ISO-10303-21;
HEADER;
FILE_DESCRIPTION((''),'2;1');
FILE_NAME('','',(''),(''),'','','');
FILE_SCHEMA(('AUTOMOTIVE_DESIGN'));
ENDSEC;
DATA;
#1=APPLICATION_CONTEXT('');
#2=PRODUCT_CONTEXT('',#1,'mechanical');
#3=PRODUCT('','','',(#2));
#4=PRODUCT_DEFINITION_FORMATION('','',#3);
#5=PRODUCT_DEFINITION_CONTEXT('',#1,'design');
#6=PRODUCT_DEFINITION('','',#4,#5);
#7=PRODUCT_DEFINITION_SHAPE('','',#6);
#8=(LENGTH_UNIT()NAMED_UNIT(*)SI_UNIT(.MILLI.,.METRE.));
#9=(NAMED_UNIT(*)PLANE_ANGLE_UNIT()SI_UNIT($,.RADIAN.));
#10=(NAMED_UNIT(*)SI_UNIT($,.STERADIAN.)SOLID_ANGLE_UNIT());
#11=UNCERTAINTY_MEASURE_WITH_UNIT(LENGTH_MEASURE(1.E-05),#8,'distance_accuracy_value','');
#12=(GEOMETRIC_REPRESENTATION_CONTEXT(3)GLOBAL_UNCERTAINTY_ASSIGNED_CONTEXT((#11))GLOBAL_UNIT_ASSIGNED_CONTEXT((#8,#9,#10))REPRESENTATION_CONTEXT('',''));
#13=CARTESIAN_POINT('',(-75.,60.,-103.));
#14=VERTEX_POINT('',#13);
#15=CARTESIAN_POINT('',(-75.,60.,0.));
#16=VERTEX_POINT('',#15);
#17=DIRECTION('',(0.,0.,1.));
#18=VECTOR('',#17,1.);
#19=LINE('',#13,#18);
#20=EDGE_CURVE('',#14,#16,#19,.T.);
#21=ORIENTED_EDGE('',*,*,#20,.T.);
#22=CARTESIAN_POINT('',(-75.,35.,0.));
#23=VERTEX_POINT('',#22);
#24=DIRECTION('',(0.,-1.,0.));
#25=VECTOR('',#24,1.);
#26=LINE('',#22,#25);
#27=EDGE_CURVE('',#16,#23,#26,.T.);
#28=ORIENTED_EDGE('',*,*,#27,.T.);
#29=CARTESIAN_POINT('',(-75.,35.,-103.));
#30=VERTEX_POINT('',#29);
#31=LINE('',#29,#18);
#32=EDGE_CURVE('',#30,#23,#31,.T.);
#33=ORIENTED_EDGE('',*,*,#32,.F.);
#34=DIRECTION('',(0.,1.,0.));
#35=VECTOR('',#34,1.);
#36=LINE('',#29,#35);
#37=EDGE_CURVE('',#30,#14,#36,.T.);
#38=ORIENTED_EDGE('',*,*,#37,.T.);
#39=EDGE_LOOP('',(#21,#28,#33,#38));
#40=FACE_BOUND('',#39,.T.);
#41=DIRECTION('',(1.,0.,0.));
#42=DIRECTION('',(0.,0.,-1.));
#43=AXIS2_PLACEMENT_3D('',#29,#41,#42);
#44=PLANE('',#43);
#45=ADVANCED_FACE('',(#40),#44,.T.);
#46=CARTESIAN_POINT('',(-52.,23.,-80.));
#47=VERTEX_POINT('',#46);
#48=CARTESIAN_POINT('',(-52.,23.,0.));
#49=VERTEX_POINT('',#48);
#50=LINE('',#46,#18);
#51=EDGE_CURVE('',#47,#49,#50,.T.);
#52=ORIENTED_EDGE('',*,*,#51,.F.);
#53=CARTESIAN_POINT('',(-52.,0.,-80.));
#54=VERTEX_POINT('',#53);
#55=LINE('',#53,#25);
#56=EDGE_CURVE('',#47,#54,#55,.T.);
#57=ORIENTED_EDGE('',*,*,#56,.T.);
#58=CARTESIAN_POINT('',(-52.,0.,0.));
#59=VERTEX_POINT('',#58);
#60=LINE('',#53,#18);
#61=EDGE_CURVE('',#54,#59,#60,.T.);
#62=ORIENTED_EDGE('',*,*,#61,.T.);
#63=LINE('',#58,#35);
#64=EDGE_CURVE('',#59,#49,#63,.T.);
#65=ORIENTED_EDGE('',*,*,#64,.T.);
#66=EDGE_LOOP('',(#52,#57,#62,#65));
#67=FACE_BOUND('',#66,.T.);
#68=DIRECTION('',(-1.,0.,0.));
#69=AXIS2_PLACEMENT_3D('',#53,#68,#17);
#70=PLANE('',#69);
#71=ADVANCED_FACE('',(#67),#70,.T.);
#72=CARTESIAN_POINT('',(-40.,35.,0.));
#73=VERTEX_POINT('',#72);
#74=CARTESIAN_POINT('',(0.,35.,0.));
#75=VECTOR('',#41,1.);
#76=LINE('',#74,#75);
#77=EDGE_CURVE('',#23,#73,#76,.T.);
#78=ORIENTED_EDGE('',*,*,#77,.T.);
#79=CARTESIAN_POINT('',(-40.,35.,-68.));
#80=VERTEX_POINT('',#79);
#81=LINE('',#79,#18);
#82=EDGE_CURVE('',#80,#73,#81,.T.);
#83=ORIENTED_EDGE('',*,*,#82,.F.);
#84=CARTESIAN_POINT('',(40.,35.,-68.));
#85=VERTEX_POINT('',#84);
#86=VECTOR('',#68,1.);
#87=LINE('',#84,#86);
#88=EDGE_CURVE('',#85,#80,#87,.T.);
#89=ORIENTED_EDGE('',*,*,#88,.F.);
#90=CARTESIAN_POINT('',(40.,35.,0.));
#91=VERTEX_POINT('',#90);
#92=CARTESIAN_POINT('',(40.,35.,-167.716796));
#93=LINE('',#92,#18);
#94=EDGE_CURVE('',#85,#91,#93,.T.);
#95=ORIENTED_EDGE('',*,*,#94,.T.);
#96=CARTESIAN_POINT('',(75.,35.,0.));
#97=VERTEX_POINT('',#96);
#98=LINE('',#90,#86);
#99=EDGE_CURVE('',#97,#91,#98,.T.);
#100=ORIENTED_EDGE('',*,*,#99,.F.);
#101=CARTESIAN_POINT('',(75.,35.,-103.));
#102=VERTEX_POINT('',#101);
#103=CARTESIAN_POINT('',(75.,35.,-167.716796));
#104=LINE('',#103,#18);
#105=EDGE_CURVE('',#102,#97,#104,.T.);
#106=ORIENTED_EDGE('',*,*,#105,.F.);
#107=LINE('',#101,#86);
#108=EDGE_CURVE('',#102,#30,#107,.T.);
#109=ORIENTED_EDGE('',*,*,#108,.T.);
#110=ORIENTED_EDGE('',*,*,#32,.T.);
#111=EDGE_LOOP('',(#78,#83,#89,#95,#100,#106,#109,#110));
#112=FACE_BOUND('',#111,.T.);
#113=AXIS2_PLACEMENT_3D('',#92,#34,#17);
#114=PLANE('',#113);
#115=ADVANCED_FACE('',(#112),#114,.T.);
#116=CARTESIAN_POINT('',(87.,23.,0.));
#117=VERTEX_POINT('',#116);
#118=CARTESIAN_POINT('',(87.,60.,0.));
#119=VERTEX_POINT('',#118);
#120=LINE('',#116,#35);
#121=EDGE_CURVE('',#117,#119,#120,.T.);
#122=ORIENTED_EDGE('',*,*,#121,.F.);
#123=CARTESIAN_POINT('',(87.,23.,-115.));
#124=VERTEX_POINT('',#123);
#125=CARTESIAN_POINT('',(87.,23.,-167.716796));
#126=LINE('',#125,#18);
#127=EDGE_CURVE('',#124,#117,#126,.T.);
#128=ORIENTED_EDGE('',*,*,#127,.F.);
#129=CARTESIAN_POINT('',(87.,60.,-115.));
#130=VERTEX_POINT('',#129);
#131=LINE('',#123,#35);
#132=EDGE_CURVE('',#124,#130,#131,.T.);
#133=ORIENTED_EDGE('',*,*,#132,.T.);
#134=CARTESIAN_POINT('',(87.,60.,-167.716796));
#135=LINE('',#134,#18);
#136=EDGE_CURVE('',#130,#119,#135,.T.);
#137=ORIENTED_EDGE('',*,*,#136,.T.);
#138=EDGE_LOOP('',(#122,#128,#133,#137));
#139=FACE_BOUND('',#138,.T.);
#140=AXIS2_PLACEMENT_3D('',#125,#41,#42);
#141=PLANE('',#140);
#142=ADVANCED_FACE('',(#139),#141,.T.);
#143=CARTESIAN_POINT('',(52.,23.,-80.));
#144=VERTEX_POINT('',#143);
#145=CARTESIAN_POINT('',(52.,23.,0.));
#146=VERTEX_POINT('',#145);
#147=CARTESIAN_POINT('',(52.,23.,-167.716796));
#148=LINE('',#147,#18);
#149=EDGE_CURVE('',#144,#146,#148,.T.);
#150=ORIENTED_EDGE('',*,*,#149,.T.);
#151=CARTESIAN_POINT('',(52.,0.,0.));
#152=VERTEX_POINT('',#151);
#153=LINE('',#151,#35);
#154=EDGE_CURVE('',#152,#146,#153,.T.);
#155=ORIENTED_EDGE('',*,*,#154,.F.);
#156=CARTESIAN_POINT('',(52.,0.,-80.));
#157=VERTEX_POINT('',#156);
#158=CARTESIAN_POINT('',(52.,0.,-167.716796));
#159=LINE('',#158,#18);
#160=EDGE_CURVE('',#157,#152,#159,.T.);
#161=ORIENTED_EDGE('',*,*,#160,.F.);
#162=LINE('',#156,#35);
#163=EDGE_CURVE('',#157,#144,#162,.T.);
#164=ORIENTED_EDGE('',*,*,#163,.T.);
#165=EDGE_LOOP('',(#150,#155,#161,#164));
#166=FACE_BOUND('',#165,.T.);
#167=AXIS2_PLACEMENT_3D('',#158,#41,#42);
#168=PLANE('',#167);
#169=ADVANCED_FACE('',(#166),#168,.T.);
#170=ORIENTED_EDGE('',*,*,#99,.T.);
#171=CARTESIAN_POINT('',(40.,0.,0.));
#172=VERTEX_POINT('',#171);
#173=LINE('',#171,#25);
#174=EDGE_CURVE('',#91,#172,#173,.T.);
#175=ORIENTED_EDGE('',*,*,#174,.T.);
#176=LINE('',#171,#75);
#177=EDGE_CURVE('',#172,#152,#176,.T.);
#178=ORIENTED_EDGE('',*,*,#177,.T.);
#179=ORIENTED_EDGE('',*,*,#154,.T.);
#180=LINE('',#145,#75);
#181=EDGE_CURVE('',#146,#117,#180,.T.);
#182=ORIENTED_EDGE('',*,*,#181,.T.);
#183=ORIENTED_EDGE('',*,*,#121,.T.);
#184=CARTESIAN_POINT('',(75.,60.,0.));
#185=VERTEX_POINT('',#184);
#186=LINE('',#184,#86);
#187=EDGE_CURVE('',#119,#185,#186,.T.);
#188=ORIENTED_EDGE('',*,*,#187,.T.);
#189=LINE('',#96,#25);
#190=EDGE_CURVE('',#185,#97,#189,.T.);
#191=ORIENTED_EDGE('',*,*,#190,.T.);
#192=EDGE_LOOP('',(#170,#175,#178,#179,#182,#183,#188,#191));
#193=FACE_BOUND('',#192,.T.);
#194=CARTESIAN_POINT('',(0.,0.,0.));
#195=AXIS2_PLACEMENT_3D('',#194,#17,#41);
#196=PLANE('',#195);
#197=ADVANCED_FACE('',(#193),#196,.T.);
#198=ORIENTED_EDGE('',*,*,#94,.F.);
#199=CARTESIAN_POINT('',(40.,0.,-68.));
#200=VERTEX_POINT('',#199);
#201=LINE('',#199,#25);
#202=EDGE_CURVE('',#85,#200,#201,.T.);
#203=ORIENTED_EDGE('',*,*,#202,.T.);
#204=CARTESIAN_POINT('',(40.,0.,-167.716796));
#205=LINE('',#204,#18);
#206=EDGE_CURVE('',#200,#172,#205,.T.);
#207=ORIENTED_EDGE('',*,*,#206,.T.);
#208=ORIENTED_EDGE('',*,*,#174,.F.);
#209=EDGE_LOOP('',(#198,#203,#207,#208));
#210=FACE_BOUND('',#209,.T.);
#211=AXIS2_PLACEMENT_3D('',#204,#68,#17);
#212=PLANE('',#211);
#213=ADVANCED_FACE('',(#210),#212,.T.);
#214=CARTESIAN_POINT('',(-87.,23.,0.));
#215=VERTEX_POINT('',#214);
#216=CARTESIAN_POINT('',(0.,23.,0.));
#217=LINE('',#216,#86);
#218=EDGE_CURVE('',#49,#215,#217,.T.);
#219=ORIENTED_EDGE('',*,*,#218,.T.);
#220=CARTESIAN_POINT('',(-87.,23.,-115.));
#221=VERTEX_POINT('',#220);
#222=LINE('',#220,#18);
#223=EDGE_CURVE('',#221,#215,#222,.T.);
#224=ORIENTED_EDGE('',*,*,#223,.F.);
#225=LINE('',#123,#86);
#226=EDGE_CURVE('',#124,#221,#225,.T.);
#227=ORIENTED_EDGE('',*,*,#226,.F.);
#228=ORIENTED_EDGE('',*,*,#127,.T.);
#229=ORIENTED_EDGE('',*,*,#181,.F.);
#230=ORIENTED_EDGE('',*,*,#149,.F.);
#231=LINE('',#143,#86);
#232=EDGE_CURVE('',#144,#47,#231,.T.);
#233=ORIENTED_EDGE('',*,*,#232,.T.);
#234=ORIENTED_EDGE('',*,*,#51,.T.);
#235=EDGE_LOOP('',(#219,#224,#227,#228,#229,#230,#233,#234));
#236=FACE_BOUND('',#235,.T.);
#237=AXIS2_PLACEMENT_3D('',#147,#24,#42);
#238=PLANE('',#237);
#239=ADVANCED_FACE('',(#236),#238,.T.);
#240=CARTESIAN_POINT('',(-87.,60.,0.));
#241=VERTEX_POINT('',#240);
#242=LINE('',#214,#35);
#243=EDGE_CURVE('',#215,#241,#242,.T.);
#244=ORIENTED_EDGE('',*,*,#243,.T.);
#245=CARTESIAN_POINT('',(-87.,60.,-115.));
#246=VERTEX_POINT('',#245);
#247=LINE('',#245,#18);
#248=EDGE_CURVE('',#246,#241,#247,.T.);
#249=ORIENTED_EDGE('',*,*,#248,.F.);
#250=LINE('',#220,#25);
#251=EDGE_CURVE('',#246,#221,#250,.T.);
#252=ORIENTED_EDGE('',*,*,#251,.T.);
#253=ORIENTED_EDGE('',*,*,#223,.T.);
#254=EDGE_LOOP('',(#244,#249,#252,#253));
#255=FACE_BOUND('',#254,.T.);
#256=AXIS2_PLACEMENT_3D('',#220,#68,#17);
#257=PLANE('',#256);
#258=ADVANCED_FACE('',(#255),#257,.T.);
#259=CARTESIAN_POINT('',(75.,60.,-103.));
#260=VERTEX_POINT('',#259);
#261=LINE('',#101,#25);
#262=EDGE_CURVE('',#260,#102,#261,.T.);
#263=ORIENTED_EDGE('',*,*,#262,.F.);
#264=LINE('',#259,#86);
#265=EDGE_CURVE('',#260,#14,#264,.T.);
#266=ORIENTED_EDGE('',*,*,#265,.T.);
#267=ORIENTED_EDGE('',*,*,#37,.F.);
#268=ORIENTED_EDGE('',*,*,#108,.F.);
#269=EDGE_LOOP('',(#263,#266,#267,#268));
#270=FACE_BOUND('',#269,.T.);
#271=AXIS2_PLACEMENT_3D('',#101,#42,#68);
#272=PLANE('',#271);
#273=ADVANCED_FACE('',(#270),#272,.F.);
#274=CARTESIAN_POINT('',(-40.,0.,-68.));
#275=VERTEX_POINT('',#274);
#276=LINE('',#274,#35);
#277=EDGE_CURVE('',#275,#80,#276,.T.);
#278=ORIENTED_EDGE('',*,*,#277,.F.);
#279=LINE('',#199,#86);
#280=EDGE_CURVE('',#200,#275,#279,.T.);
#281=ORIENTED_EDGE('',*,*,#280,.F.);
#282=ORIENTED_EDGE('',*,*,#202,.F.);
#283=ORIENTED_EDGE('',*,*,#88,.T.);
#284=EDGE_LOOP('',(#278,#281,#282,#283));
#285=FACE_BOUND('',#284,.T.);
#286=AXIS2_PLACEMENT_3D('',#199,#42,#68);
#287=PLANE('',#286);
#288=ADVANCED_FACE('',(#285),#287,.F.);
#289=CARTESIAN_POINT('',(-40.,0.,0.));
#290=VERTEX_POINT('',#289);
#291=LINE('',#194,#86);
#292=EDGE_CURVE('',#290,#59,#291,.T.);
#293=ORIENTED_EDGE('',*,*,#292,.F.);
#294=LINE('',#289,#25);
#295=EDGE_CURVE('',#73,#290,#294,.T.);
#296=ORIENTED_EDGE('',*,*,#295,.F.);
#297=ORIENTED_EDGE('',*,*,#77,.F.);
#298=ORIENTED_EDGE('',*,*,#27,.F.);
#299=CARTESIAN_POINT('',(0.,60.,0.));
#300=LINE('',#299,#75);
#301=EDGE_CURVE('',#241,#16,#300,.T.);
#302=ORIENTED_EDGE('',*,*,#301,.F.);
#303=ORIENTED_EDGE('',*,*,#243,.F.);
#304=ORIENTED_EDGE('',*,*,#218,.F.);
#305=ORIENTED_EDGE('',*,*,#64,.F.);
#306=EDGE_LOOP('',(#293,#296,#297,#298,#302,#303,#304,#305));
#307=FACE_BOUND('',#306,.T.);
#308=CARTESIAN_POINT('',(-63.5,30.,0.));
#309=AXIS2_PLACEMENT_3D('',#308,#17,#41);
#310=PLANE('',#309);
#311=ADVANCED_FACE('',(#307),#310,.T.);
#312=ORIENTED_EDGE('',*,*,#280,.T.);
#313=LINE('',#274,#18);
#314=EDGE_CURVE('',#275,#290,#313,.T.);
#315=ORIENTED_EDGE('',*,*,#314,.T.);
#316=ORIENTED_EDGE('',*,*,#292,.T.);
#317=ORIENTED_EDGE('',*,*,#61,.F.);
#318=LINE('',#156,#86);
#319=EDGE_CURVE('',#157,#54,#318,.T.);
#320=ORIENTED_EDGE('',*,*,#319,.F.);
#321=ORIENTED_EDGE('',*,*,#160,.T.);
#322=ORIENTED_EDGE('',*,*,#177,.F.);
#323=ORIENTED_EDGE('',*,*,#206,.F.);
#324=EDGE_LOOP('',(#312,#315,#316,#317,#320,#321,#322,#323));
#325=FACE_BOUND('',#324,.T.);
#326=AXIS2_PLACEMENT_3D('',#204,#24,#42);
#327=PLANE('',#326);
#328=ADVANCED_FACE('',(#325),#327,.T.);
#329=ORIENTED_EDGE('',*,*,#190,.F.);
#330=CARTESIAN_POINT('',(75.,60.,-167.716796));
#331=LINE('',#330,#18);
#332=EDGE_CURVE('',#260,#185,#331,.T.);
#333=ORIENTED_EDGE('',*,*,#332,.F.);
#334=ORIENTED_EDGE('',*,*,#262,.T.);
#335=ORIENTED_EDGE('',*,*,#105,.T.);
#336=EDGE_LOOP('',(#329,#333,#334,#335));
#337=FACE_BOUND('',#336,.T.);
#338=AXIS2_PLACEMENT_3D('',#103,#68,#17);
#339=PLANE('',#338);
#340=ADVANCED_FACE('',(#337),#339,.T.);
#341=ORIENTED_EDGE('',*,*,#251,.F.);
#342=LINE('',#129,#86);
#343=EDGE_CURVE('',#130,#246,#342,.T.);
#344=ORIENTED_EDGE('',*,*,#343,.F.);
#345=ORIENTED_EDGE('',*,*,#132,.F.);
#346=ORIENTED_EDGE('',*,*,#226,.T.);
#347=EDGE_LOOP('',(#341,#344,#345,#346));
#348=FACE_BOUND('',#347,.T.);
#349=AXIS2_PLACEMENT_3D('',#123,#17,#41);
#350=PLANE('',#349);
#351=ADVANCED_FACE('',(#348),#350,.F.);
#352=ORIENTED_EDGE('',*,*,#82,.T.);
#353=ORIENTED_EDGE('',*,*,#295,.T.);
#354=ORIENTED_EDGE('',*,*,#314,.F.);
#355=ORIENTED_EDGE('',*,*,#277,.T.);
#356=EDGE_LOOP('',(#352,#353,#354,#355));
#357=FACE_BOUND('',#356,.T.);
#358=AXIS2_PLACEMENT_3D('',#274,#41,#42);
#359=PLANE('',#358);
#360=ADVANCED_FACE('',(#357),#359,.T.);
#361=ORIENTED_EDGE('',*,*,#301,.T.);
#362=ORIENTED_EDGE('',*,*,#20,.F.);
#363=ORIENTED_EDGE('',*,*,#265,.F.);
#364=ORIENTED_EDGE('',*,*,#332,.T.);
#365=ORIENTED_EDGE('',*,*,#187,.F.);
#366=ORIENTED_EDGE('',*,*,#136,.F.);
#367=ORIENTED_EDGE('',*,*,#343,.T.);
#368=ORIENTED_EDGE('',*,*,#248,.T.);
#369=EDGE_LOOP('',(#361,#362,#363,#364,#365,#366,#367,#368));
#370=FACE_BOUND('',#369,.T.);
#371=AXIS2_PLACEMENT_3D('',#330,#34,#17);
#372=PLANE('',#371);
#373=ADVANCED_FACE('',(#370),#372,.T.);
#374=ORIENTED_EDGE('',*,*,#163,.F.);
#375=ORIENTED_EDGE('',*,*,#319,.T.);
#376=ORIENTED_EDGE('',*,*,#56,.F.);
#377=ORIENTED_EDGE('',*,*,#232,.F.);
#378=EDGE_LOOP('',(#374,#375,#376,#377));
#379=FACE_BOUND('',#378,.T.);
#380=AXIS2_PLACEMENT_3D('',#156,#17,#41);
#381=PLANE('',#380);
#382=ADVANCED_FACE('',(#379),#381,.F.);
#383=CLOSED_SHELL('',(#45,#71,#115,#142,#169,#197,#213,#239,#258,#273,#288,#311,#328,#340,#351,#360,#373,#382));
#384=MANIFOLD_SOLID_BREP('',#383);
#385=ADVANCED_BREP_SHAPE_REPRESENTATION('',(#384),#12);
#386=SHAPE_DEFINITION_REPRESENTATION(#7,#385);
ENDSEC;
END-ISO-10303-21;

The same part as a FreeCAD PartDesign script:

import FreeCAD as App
import Part
import Sketcher

doc = App.newDocument("Part")
body = doc.addObject("PartDesign::Body", "Body")

# Sketch on XY plane
sketch1 = body.newObject("Sketcher::SketchObject", "Sketch")
sketch1.AttachmentSupport = (doc.getObject("XY_Plane"), [""])
sketch1.MapMode = "FlatFace"
sketch1.addGeometry([
    Part.LineSegment(App.Vector(40, 35, 0), App.Vector(40, 0, 0)),  # 0
    Part.LineSegment(App.Vector(40, 0, 0), App.Vector(52, 0, 0)),  # 1
    Part.LineSegment(App.Vector(52, 0, 0), App.Vector(52, 23, 0)),  # 2
    Part.LineSegment(App.Vector(52, 23, 0), App.Vector(87, 23, 0)),  # 3
    Part.LineSegment(App.Vector(87, 23, 0), App.Vector(87, 60, 0)),  # 4
    Part.LineSegment(App.Vector(87, 60, 0), App.Vector(75, 60, 0)),  # 5
    Part.LineSegment(App.Vector(75, 60, 0), App.Vector(75, 35, 0)),  # 6
    Part.LineSegment(App.Vector(75, 35, 0), App.Vector(40, 35, 0)),  # 7
], False)
sketch1.addConstraint([
    Sketcher.Constraint("Coincident", 0, 2, 1, 1),
    Sketcher.Constraint("Coincident", 1, 2, 2, 1),
    Sketcher.Constraint("Coincident", 2, 2, 3, 1),
    Sketcher.Constraint("Coincident", 3, 2, 4, 1),
    Sketcher.Constraint("Coincident", 4, 2, 5, 1),
    Sketcher.Constraint("Coincident", 5, 2, 6, 1),
    Sketcher.Constraint("Coincident", 6, 2, 7, 1),
    Sketcher.Constraint("Coincident", 7, 2, 0, 1),
    Sketcher.Constraint("Vertical", 0),
    Sketcher.Constraint("Horizontal", 1),
    Sketcher.Constraint("Vertical", 2),
    Sketcher.Constraint("Horizontal", 3),
    Sketcher.Constraint("Vertical", 4),
    Sketcher.Constraint("Horizontal", 5),
    Sketcher.Constraint("Vertical", 6),
    Sketcher.Constraint("Horizontal", 7),
    Sketcher.Constraint("PointOnObject", 0, 2, -1),
    Sketcher.Constraint("Equal", 1, 5),
    Sketcher.Constraint("Equal", 7, 0),
    Sketcher.Constraint("DistanceX", 1, 1, 1, 2, 12.0),
    Sketcher.Constraint("DistanceX", 3, 1, 3, 2, 35.0),
    Sketcher.Constraint("DistanceY", 2, 1, 2, 2, 23.0),
    Sketcher.Constraint("DistanceY", 4, 1, 4, 2, 37.0),
    Sketcher.Constraint("DistanceX", -1, 1, 0, 2, 40.0),
])

# Sketch on XZ plane
sketch2 = body.newObject("Sketcher::SketchObject", "Sketch001")
sketch2.AttachmentSupport = (doc.getObject("XZ_Plane"), [""])
sketch2.MapMode = "FlatFace"
sketch2.addGeometry([
    Part.LineSegment(App.Vector(-40, 0, 0), App.Vector(-40, -68, 0)),
    Part.LineSegment(App.Vector(-40, -68, 0), App.Vector(40, -68, 0)),
    Part.LineSegment(App.Vector(40, -68, 0), App.Vector(40, 0, 0)),
], False)
sketch2.addConstraint([
    Sketcher.Constraint("Coincident", 0, 2, 1, 1),
    Sketcher.Constraint("Coincident", 1, 2, 2, 1),
    Sketcher.Constraint("Vertical", 0),
    Sketcher.Constraint("Horizontal", 1),
    Sketcher.Constraint("Vertical", 2),
    Sketcher.Constraint("Symmetric", 0, 1, 2, 2, -1, 1),
    Sketcher.Constraint("PointOnObject", 0, 1, -1),
    Sketcher.Constraint("DistanceX", 1, 1, 1, 2, 80.0),
    Sketcher.Constraint("DistanceY", 0, 2, 0, 1, 68.0),
])
doc.recompute()

additivepipe = body.newObject("PartDesign::AdditivePipe", "AdditivePipe")
additivepipe.Profile = sketch1
additivepipe.Spine = (sketch2, ["Edge1", "Edge2", "Edge3"])
additivepipe.Transition = "Right corner"

doc.recompute()
